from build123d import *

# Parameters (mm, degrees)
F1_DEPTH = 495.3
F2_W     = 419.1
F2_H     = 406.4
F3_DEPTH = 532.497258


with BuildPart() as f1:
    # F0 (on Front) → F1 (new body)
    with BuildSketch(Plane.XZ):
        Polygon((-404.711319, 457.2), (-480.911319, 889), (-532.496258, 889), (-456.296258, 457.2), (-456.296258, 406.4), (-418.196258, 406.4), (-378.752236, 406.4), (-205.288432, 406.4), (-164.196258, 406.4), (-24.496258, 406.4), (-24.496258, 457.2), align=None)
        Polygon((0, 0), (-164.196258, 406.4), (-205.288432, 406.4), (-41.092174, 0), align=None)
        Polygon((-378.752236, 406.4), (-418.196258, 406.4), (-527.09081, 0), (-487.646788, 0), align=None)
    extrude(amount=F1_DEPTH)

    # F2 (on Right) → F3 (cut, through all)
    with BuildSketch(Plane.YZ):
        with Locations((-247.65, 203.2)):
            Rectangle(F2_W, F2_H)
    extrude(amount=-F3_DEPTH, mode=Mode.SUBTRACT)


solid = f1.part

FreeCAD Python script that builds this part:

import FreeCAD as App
import Part
import Sketcher
Q = App.Units.Quantity

doc = App.newDocument("Part")
body = doc.addObject("PartDesign::Body", "Body")

# Sketch on XZ plane
sketch1 = body.newObject("Sketcher::SketchObject", "Sketch")
sketch1.AttachmentSupport = (doc.getObject("XZ_Plane"), [""])
sketch1.MapMode = "FlatFace"
sketch1.addGeometry([
    Part.LineSegment(App.Vector(-405, 457, 0), App.Vector(-481, 889, 0)),  # 0
    Part.LineSegment(App.Vector(-481, 889, 0), App.Vector(-532, 889, 0)),  # 1
    Part.LineSegment(App.Vector(-532, 889, 0), App.Vector(-456, 457, 0)),  # 2
    Part.LineSegment(App.Vector(-456, 457, 0), App.Vector(-456, 406, 0)),  # 3
    Part.LineSegment(App.Vector(-456, 406, 0), App.Vector(-418, 406, 0)),  # 4
    Part.LineSegment(App.Vector(-418, 406, 0), App.Vector(-527, 0, 0)),  # 5
    Part.LineSegment(App.Vector(-527, 0, 0), App.Vector(-488, 0, 0)),  # 6
    Part.LineSegment(App.Vector(-488, 0, 0), App.Vector(-379, 406, 0)),  # 7
    Part.LineSegment(App.Vector(-379, 406, 0), App.Vector(-205, 406, 0)),  # 8
    Part.LineSegment(App.Vector(-205, 406, 0), App.Vector(-41, 0, 0)),  # 9
    Part.LineSegment(App.Vector(-41, 0, 0), App.Vector(0, 0, 0)),  # 10
    Part.LineSegment(App.Vector(0, 0, 0), App.Vector(-164, 406, 0)),  # 11
    Part.LineSegment(App.Vector(-164, 406, 0), App.Vector(-24, 406, 0)),  # 12
    Part.LineSegment(App.Vector(-24, 406, 0), App.Vector(-24, 457, 0)),  # 13
    Part.LineSegment(App.Vector(-24, 457, 0), App.Vector(-405, 457, 0)),  # 14
], False)
sketch1.addConstraint([
    Sketcher.Constraint("Coincident", 0, 2, 1, 1),
    Sketcher.Constraint("Coincident", 1, 2, 2, 1),
    Sketcher.Constraint("Coincident", 2, 2, 3, 1),
    Sketcher.Constraint("Coincident", 3, 2, 4, 1),
    Sketcher.Constraint("Coincident", 4, 2, 5, 1),
    Sketcher.Constraint("Coincident", 5, 2, 6, 1),
    Sketcher.Constraint("Coincident", 6, 2, 7, 1),
    Sketcher.Constraint("Coincident", 7, 2, 8, 1),
    Sketcher.Constraint("Coincident", 8, 2, 9, 1),
    Sketcher.Constraint("Coincident", 9, 2, 10, 1),
    Sketcher.Constraint("Coincident", 10, 2, 11, 1),
    Sketcher.Constraint("Coincident", 11, 2, 12, 1),
    Sketcher.Constraint("Coincident", 12, 2, 13, 1),
    Sketcher.Constraint("Coincident", 13, 2, 14, 1),
    Sketcher.Constraint("Coincident", 14, 2, 0, 1),
    Sketcher.Constraint("Horizontal", 1),
    Sketcher.Constraint("Vertical", 3),
    Sketcher.Constraint("Horizontal", 4),
    Sketcher.Constraint("Horizontal", 6),
    Sketcher.Constraint("Horizontal", 8),
    Sketcher.Constraint("Horizontal", 10),
    Sketcher.Constraint("Horizontal", 12),
    Sketcher.Constraint("Vertical", 13),
    Sketcher.Constraint("Horizontal", 14),
    Sketcher.Constraint("Coincident", 10, 2, -1, 1),
    Sketcher.Constraint("PointOnObject", 5, 2, -1),
    Sketcher.Constraint("Parallel", 0, 2),
    Sketcher.Constraint("Parallel", 5, 7),
    Sketcher.Constraint("Parallel", 9, 11),
    Sketcher.Constraint("Horizontal", 4, 2, 7, 2),
    Sketcher.Constraint("Horizontal", 8, 2, 11, 2),
    Sketcher.Constraint("Horizontal", 2, 2, 13, 2),
    Sketcher.Constraint("DistanceY", 3, 2, 3, 1, Q("2 in")),
    Sketcher.Constraint("DistanceX", 4, 1, 4, 2, Q("1.5 in")),
    Sketcher.Constraint("DistanceX", 12, 1, 12, 2, Q("5.5 in")),
    Sketcher.Constraint("DistanceY", -1, 1, 0, 2, Q("35 in")),
    Sketcher.Constraint("DistanceY", -1, 1, 2, 2, Q("18 in")),
    Sketcher.Constraint("Angle", 5, Q("-105 deg")),
    Sketcher.Constraint("Angle", 9, Q("-68 deg")),
    Sketcher.Constraint("DistanceX", 1, 2, 2, 2, Q("3 in")),
    Sketcher.Constraint("DistanceX", 4, 2, 11, 2, Q("10 in")),
    Sketcher.Constraint("DistanceX", 1, 2, 1, 1, 51.584939),
    Sketcher.Constraint("DistanceX", 6, 1, 6, 2, 39.444022),
    Sketcher.Constraint("DistanceX", 8, 1, 8, 2, 173.463804),
])
pad1 = body.newObject("PartDesign::Pad", "Pad")
pad1.Profile = sketch1
pad1.Length = Q("19.5 in")

# Sketch on YZ plane
sketch2 = body.newObject("Sketcher::SketchObject", "Sketch001")
sketch2.AttachmentSupport = (doc.getObject("YZ_Plane"), [""])
sketch2.MapMode = "FlatFace"
sketch2.addGeometry([
    Part.LineSegment(App.Vector(-457, 406, 0), App.Vector(-457, 0, 0)),
    Part.LineSegment(App.Vector(-457, 0, 0), App.Vector(-38, 0, 0)),
    Part.LineSegment(App.Vector(-38, 0, 0), App.Vector(-38, 406, 0)),
    Part.LineSegment(App.Vector(-38, 406, 0), App.Vector(-457, 406, 0)),
], False)
sketch2.addConstraint([
    Sketcher.Constraint("Coincident", 0, 2, 1, 1),
    Sketcher.Constraint("Coincident", 1, 2, 2, 1),
    Sketcher.Constraint("Coincident", 2, 2, 3, 1),
    Sketcher.Constraint("Coincident", 3, 2, 0, 1),
    Sketcher.Constraint("Vertical", 0),
    Sketcher.Constraint("Horizontal", 1),
    Sketcher.Constraint("Vertical", 2),
    Sketcher.Constraint("Horizontal", 3),
    Sketcher.Constraint("PointOnObject", 0, 2, -1),
    Sketcher.Constraint("DistanceY", 0, 2, 0, 1, Q("16 in")),
    Sketcher.Constraint("DistanceX", 1, 1, 1, 2, Q("16.5 in")),
    Sketcher.Constraint("DistanceX", 0, 2, -1, 1, Q("18 in")),
])
pocket1 = body.newObject("PartDesign::Pocket", "Pocket")
pocket1.Profile = sketch2
pocket1.Type = "ThroughAll"

doc.recompute()
